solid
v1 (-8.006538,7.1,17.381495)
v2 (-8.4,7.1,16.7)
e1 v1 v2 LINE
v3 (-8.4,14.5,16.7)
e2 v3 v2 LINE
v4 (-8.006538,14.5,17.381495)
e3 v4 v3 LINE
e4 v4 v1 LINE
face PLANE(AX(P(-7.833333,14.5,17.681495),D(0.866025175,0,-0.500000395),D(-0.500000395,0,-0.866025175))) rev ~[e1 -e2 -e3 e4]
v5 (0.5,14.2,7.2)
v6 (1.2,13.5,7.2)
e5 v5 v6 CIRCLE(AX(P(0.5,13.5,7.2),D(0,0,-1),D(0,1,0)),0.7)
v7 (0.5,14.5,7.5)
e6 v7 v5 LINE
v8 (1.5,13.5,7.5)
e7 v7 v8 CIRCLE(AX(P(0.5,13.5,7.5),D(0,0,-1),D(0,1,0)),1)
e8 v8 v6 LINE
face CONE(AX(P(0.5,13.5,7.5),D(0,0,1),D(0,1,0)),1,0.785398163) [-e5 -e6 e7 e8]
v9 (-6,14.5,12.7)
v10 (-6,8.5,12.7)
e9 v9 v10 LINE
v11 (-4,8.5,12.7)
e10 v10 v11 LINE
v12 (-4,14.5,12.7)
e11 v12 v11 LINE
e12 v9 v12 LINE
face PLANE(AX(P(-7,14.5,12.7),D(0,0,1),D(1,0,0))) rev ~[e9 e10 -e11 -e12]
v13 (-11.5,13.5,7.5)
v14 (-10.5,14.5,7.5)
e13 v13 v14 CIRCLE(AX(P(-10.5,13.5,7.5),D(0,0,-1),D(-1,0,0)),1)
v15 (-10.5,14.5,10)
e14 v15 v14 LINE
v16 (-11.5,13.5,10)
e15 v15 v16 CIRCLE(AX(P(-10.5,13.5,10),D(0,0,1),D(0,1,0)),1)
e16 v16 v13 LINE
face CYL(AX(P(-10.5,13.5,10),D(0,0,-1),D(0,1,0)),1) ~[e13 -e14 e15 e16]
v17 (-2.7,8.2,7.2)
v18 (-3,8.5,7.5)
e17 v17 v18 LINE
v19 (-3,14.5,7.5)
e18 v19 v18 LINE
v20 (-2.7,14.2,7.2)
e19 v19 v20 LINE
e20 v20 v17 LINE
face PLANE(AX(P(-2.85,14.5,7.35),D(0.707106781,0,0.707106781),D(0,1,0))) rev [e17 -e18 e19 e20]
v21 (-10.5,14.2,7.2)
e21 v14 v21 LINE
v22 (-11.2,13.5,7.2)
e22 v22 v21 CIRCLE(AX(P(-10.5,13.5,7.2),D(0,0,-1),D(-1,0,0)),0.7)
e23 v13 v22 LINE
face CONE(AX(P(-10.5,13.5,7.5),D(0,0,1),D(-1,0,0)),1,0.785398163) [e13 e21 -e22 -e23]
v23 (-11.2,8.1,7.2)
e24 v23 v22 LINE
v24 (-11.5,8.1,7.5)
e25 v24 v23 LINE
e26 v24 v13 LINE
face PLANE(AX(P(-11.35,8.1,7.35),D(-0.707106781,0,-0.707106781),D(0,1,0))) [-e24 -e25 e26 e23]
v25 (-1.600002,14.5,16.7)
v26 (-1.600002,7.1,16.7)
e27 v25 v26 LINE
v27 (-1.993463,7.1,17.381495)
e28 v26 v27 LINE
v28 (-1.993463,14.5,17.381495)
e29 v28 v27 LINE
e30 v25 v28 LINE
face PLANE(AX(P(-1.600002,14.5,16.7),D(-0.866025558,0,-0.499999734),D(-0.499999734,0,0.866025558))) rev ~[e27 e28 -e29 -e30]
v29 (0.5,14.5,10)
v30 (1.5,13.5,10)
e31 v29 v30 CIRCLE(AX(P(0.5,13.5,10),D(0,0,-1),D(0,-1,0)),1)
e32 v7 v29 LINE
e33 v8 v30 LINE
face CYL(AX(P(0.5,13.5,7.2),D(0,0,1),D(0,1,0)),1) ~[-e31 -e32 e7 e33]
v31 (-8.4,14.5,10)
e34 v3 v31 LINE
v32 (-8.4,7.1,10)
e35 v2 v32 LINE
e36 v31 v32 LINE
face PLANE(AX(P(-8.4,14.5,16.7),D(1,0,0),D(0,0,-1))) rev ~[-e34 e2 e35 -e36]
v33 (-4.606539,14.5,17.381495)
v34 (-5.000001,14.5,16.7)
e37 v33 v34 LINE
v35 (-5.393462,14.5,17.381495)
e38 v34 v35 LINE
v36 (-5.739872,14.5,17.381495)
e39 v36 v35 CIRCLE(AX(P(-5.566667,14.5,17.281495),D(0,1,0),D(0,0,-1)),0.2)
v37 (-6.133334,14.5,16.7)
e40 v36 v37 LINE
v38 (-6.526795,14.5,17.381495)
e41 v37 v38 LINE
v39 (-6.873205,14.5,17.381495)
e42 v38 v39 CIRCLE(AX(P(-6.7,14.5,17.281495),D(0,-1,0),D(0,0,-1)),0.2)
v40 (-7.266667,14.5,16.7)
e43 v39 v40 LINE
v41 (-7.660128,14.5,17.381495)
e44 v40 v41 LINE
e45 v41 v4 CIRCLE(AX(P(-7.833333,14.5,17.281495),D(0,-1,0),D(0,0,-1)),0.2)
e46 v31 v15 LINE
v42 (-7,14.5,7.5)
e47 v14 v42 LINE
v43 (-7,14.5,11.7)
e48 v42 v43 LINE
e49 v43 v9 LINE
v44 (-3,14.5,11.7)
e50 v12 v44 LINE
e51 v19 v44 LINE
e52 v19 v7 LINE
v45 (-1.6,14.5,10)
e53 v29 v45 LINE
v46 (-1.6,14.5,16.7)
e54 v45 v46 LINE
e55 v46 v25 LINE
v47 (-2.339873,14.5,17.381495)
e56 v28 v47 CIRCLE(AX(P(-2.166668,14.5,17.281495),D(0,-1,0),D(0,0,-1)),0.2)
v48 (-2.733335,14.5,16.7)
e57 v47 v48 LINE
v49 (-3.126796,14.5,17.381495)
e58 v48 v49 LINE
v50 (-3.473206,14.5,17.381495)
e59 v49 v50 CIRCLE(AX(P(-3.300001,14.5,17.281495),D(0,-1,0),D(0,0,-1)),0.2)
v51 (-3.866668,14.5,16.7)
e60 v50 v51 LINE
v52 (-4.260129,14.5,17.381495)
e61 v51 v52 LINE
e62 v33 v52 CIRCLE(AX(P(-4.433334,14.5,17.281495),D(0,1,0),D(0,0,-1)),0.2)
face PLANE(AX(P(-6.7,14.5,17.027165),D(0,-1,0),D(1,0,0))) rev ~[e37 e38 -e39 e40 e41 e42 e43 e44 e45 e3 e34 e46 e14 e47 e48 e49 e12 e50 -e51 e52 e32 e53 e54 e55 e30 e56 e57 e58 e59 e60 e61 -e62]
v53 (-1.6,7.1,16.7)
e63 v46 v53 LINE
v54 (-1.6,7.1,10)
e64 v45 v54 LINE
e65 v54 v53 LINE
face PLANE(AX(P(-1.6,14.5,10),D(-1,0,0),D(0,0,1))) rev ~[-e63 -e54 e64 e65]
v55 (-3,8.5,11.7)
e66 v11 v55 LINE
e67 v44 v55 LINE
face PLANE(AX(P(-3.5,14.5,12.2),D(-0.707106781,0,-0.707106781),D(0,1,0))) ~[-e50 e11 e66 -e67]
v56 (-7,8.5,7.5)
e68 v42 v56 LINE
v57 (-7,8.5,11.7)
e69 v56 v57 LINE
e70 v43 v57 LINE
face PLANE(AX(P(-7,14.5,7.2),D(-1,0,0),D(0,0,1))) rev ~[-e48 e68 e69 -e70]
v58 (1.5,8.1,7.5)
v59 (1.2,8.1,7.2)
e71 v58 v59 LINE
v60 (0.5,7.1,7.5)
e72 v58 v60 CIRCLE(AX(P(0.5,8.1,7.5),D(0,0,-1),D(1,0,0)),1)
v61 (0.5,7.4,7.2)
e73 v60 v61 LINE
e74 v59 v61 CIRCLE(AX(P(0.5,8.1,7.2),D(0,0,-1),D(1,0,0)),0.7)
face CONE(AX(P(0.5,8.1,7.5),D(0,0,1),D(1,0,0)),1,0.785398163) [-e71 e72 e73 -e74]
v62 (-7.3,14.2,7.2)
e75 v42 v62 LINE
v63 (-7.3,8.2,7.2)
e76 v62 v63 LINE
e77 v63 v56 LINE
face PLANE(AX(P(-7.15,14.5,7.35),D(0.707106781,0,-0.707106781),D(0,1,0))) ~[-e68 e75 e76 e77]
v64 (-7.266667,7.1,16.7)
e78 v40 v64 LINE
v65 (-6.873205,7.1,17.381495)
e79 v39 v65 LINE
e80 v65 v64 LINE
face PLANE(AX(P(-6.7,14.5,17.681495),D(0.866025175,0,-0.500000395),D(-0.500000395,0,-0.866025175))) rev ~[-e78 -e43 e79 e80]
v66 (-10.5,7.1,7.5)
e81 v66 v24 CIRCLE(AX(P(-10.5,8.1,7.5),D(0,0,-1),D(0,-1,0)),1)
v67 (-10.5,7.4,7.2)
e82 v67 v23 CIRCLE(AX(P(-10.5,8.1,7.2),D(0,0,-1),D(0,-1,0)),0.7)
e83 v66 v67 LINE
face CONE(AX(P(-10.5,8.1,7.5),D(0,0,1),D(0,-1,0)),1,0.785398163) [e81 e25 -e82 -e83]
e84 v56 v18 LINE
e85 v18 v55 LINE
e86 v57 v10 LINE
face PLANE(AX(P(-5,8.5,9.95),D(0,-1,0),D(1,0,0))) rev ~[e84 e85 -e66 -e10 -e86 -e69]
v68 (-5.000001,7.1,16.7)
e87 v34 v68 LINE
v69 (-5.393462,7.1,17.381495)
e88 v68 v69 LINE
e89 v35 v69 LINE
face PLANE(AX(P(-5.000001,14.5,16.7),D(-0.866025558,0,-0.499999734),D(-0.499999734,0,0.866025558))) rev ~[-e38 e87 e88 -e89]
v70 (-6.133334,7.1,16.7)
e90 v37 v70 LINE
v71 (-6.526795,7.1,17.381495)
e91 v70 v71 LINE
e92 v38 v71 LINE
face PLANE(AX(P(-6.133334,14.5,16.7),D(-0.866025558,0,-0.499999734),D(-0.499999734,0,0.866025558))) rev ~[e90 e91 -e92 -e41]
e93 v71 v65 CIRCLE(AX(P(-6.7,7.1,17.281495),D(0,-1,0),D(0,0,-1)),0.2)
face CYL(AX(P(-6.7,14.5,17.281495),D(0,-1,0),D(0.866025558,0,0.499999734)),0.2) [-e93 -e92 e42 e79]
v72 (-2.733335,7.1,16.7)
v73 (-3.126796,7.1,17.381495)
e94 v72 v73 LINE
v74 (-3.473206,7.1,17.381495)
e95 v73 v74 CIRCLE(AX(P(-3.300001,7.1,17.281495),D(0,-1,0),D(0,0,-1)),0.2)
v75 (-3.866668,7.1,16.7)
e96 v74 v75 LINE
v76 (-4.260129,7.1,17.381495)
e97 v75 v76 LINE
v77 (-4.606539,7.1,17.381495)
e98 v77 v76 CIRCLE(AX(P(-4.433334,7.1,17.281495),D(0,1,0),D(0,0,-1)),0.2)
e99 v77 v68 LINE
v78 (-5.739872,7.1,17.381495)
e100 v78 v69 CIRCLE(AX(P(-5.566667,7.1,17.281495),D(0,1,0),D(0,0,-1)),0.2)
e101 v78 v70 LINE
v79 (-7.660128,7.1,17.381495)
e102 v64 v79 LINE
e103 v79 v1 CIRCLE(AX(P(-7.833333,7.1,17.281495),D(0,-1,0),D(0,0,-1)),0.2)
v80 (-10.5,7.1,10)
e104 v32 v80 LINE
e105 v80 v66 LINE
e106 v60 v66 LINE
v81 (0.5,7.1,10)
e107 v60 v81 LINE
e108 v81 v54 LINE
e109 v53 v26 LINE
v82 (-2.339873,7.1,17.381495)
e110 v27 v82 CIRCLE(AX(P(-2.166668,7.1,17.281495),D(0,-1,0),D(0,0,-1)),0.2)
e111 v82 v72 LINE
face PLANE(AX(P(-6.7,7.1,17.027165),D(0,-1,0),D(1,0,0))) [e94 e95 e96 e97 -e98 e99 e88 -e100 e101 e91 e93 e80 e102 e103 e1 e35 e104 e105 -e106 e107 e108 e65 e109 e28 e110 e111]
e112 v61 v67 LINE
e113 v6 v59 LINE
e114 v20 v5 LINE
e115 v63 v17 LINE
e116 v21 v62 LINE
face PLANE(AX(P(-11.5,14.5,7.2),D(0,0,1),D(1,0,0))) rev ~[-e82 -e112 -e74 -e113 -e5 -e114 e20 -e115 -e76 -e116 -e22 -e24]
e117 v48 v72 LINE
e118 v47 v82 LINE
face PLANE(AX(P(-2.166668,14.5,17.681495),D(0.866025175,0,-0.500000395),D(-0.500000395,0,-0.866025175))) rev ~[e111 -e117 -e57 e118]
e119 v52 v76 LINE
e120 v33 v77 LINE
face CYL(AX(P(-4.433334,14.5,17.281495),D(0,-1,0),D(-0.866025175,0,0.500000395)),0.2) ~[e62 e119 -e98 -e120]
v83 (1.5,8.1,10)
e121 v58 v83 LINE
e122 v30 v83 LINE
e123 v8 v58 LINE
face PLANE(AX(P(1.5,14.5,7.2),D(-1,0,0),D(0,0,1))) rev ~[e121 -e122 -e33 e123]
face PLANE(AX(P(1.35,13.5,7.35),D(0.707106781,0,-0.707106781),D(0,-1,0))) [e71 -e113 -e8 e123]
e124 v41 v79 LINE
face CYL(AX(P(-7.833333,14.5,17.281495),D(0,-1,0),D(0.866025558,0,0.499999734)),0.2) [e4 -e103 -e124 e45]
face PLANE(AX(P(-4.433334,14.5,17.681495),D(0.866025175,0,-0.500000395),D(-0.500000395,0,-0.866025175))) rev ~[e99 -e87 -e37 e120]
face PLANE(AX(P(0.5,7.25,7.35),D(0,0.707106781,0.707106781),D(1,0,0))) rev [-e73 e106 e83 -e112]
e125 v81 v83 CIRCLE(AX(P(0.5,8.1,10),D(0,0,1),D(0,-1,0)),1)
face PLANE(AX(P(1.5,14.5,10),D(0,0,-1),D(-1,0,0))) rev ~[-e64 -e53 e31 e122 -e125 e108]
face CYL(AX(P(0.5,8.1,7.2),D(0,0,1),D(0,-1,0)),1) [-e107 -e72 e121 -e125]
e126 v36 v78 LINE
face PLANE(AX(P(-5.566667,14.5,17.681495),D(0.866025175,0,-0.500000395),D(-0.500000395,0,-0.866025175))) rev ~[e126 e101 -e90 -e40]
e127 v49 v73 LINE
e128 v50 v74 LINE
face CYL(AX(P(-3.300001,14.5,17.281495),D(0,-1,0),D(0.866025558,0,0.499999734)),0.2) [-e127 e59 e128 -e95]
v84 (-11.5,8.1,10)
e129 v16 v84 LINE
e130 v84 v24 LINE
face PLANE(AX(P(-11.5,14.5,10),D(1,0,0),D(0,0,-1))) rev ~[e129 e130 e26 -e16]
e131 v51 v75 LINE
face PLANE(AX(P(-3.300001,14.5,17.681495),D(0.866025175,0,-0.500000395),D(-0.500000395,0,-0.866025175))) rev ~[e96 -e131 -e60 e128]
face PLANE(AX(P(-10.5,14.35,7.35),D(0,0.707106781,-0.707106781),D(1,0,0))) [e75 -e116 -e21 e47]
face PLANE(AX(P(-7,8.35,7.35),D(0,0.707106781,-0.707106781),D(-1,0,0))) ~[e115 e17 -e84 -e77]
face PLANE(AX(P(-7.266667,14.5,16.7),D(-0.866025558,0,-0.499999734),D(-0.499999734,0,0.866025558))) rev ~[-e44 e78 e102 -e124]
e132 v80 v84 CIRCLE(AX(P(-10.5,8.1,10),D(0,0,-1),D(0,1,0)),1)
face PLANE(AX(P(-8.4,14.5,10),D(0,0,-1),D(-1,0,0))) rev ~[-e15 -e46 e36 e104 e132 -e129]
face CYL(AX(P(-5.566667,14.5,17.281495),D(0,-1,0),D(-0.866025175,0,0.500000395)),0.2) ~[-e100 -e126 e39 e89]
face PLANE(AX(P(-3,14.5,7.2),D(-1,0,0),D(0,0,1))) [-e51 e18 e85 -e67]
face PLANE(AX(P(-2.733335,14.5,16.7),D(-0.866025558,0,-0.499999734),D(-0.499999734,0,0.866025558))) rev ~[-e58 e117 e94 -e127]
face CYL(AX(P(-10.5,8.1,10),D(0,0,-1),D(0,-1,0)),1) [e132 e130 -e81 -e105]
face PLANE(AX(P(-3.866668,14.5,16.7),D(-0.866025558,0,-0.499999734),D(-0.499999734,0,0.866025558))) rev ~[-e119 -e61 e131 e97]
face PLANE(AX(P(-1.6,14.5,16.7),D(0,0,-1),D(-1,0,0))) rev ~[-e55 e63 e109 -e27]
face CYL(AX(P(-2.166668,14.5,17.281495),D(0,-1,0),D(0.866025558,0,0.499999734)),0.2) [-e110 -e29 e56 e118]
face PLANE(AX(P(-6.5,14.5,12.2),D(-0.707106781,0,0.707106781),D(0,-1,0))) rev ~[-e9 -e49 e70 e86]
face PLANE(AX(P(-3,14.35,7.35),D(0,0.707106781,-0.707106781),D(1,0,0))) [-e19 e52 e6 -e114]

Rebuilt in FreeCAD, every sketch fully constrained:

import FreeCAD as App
import Part
import Sketcher

V = App.Vector
Q = App.Units.Quantity


def edges_at(feature, points):
    """Names of the edges that pass closest to the given points."""
    edges = feature.Shape.Edges
    near = lambda p: min(range(len(edges)), key=lambda i: edges[i].distToShape(Part.Vertex(*p))[0])
    return sorted({f"Edge{near(p) + 1}" for p in points})

doc = App.newDocument("Part")
body = doc.addObject("PartDesign::Body", "Body")

# Sketch on XZ plane
sketch1 = body.newObject("Sketcher::SketchObject", "Sketch")
sketch1.AttachmentSupport = (doc.getObject("XZ_Plane"), [""])
sketch1.MapMode = "FlatFace"
sketch1.addGeometry(Part.LineSegment(V(-6.5, 0, 0), V(6.5, 0, 0)), False)
sketch1.addGeometry(Part.LineSegment(V(6.5, 0, 0), V(6.5, 2.8, 0)), False)
sketch1.addGeometry(Part.LineSegment(V(6.5, 2.8, 0), V(3.4, 2.8, 0)), False)
sketch1.addGeometry(Part.LineSegment(V(3.4, 2.8, 0), V(3.4, 9.5, 0)), False)
sketch1.addGeometry(Part.LineSegment(V(3.4, 9.5, 0), V(-3.4, 9.5, 0)), False)
sketch1.addGeometry(Part.LineSegment(V(-3.4, 9.5, 0), V(-3.4, 2.8, 0)), False)
sketch1.addGeometry(Part.LineSegment(V(-3.4, 2.8, 0), V(-6.5, 2.8, 0)), False)
sketch1.addGeometry(Part.LineSegment(V(-6.5, 2.8, 0), V(-6.5, 0, 0)), False)
sketch1.addConstraint(Sketcher.Constraint("Coincident", 0, 2, 1, 1))
sketch1.addConstraint(Sketcher.Constraint("Coincident", 1, 2, 2, 1))
sketch1.addConstraint(Sketcher.Constraint("Coincident", 2, 2, 3, 1))
sketch1.addConstraint(Sketcher.Constraint("Coincident", 3, 2, 4, 1))
sketch1.addConstraint(Sketcher.Constraint("Coincident", 4, 2, 5, 1))
sketch1.addConstraint(Sketcher.Constraint("Coincident", 5, 2, 6, 1))
sketch1.addConstraint(Sketcher.Constraint("Coincident", 6, 2, 7, 1))
sketch1.addConstraint(Sketcher.Constraint("Coincident", 7, 2, 0, 1))
sketch1.addConstraint(Sketcher.Constraint("Horizontal", 0))
sketch1.addConstraint(Sketcher.Constraint("Vertical", 1))
sketch1.addConstraint(Sketcher.Constraint("Horizontal", 2))
sketch1.addConstraint(Sketcher.Constraint("Vertical", 3))
sketch1.addConstraint(Sketcher.Constraint("Horizontal", 4))
sketch1.addConstraint(Sketcher.Constraint("Vertical", 5))
sketch1.addConstraint(Sketcher.Constraint("Horizontal", 6))
sketch1.addConstraint(Sketcher.Constraint("Vertical", 7))
sketch1.addConstraint(Sketcher.Constraint("Symmetric", 0, 2, 7, 2, -1, 1))
sketch1.addConstraint(Sketcher.Constraint("Symmetric", 2, 2, 5, 2, -2))
sketch1.addConstraint(Sketcher.Constraint("DistanceX", 0, 1, 0, 2, Q("13 mm")))
sketch1.addConstraint(Sketcher.Constraint("DistanceX", 2, 2, 2, 1, Q("3.1 mm")))
sketch1.addConstraint(Sketcher.Constraint("DistanceY", 1, 1, 1, 2, Q("2.8 mm")))
sketch1.addConstraint(Sketcher.Constraint("DistanceY", 3, 1, 3, 2, Q("6.7 mm")))
pad1 = body.newObject("PartDesign::Pad", "Pad")
pad1.Profile = sketch1
pad1.Length = 7.4

# Sketch on XZ plane
sketch2 = body.newObject("Sketcher::SketchObject", "Sketch001")
sketch2.AttachmentSupport = (doc.getObject("XZ_Plane"), [""])
sketch2.MapMode = "FlatFace"
sketch2.addGeometry(Part.LineSegment(V(-2, 5.5, 0), V(-2, 0, 0)), False)
sketch2.addGeometry(Part.LineSegment(V(-2, 0, 0), V(2, 0, 0)), False)
sketch2.addGeometry(Part.LineSegment(V(2, 0, 0), V(2, 5.5, 0)), False)
sketch2.addGeometry(Part.LineSegment(V(2, 5.5, 0), V(-2, 5.5, 0)), False)
sketch2.addConstraint(Sketcher.Constraint("Coincident", 0, 2, 1, 1))
sketch2.addConstraint(Sketcher.Constraint("Coincident", 1, 2, 2, 1))
sketch2.addConstraint(Sketcher.Constraint("Coincident", 2, 2, 3, 1))
sketch2.addConstraint(Sketcher.Constraint("Coincident", 3, 2, 0, 1))
sketch2.addConstraint(Sketcher.Constraint("Vertical", 0))
sketch2.addConstraint(Sketcher.Constraint("Horizontal", 1))
sketch2.addConstraint(Sketcher.Constraint("Vertical", 2))
sketch2.addConstraint(Sketcher.Constraint("Horizontal", 3))
sketch2.addConstraint(Sketcher.Constraint("Symmetric", 0, 2, 1, 2, -1, 1))
sketch2.addConstraint(Sketcher.Constraint("DistanceX", 1, 1, 1, 2, Q("4 mm")))
sketch2.addConstraint(Sketcher.Constraint("DistanceY", 0, 2, 0, 1, Q("5.5 mm")))
pocket1 = body.newObject("PartDesign::Pocket", "Pocket")
pocket1.Profile = sketch2
pocket1.Length = 6
pocket1.Reversed = True

# Sketch on XZ plane
sketch3 = body.newObject("Sketcher::SketchObject", "Sketch002")
sketch3.AttachmentSupport = (doc.getObject("XZ_Plane"), [""])
sketch3.MapMode = "FlatFace"
sketch3.addGeometry(Part.LineSegment(V(-3.4, 9.5, 0), V(-2.3, 9.5, 0)), False)
sketch3.addGeometry(Part.LineSegment(V(-2.3, 9.5, 0), V(-2.8, 10.5, 0)), False)
sketch3.addGeometry(Part.LineSegment(V(-2.8, 10.5, 0), V(-3.4, 9.5, 0)), False)
sketch3.addConstraint(Sketcher.Constraint("Coincident", 0, 2, 1, 1))
sketch3.addConstraint(Sketcher.Constraint("Coincident", 1, 2, 2, 1))
sketch3.addConstraint(Sketcher.Constraint("Coincident", 2, 2, 0, 1))
sketch3.addConstraint(Sketcher.Constraint("Horizontal", 0))
sketch3.addConstraint(Sketcher.Constraint("Equal", 1, 2))
sketch3.addConstraint(Sketcher.Constraint("Angle", 1, Q("119.999982 deg")))
sketch3.addConstraint(Sketcher.Constraint("DistanceY", -1, 1, 0, 2, Q("9.5 mm")))
sketch3.addConstraint(Sketcher.Constraint("DistanceX", 2, 2, -1, 1, Q("3.4 mm")))
sketch3.addConstraint(Sketcher.Constraint("DistanceX", 0, 1, 0, 2, Q("1.133333 mm")))
pad2 = body.newObject("PartDesign::Pad", "Pad001")
pad2.Profile = sketch3
pad2.Length = 7.4
doc.recompute()

linearpattern = body.newObject("PartDesign::LinearPattern", "LinearPattern")
linearpattern.Originals = [pad2]
linearpattern.Direction = (doc.getObject("X_Axis"), [""])
linearpattern.Mode = "offset"
linearpattern.Offset = 1.133333
linearpattern.Occurrences = 6
body.Tip = linearpattern
doc.recompute()

fillet = body.newObject("PartDesign::Fillet", "Fillet")
fillet.Base = (linearpattern, edges_at(linearpattern, [
    (-2.833, -3.7, 10.481),
    (-1.7, -3.7, 10.481),
    (-0.567, -3.7, 10.481),
    (0.567, -3.7, 10.481),
    (1.7, -3.7, 10.481),
    (2.833, -3.7, 10.481),
]))
fillet.Radius = 0.2
doc.recompute()

fillet2 = body.newObject("PartDesign::Fillet", "Fillet001")
fillet2.Base = (fillet, edges_at(fillet, [
    (-6.5, 0, 1.4),
    (-6.5, -7.4, 1.4),
    (6.5, -7.4, 1.4),
    (6.5, 0, 1.4),
]))
fillet2.Radius = 1
doc.recompute()

chamfer = body.newObject("PartDesign::Chamfer", "Chamfer")
chamfer.Base = (fillet2, edges_at(fillet2, [
    (-3.75, 0, 0),
    (-6.207, -0.293, 0),
    (-2, -3, 0),
    (-6.5, -3.7, 0),
    (0, -6, 0),
    (-6.207, -7.107, 0),
    (2, -3, 0),
    (0, -7.4, 0),
    (3.75, 0, 0),
    (6.207, -7.107, 0),
    (6.207, -0.293, 0),
    (6.5, -3.7, 0),
]))
chamfer.Size = 0.3
doc.recompute()

chamfer2 = body.newObject("PartDesign::Chamfer", "Chamfer001")
chamfer2.Base = (chamfer, edges_at(chamfer, [(2, -3, 5.5), (-2, -3, 5.5)]))
chamfer2.Size = 1
body2 = doc.addObject("PartDesign::Body", "Body001")
doc.recompute()

body.Placement = App.Placement(V(-5, 14.5, 7.2), App.Rotation(V(0, 0, 1), 0))
boolean = body2.newObject("PartDesign::Boolean", "Boolean")
boolean.Type = "Fuse"
boolean.addObjects([body])

doc.recompute()
